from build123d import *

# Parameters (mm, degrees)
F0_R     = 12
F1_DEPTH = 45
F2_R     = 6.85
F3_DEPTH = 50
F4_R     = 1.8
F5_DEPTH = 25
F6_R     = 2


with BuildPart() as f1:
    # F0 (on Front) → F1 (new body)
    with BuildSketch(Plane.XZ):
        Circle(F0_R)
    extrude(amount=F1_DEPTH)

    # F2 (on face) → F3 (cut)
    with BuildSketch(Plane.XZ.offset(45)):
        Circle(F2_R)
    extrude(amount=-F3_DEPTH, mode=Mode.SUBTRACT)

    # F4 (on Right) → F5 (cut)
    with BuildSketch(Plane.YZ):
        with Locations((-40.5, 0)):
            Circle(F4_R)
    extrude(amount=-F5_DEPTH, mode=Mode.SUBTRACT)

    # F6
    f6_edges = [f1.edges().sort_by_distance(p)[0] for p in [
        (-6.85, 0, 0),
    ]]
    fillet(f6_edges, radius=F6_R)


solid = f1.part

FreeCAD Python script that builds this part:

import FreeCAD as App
import Part
import Sketcher


def edges_at(feature, points):
    """Names of the edges that pass closest to the given points."""
    edges = feature.Shape.Edges
    near = lambda p: min(range(len(edges)), key=lambda i: edges[i].distToShape(Part.Vertex(*p))[0])
    return sorted({f"Edge{near(p) + 1}" for p in points})

doc = App.newDocument("Part")
body = doc.addObject("PartDesign::Body", "Body")

sketch1 = body.newObject("Sketcher::SketchObject", "Sketch")
sketch1.AttachmentSupport = (doc.getObject("XZ_Plane"), [""])
sketch1.MapMode = "FlatFace"
sketch1.addGeometry(Part.Circle(App.Vector(0, 0, 0), App.Vector(0, 0, 1), 12), False)
sketch1.addConstraint(Sketcher.Constraint("Coincident", 0, 3, -1, 1))
sketch1.addConstraint(Sketcher.Constraint("Diameter", 0, 24.0))
pad1 = body.newObject("PartDesign::Pad", "Pad")
pad1.Profile = sketch1
pad1.Length = 45

sketch2 = body.newObject("Sketcher::SketchObject", "Sketch001")
sketch2.AttachmentSupport = (doc.getObject("XZ_Plane"), [""])
sketch2.MapMode = "FlatFace"
sketch2.AttachmentOffset = App.Placement(App.Vector(0, 0, 45), App.Rotation())
sketch2.addGeometry(Part.Circle(App.Vector(0, 0, 0), App.Vector(0, 0, 1), 7), False)
sketch2.addConstraint(Sketcher.Constraint("Coincident", 0, 3, -1, 1))
sketch2.addConstraint(Sketcher.Constraint("Diameter", 0, 13.7))
pocket1 = body.newObject("PartDesign::Pocket", "Pocket")
pocket1.Profile = sketch2
pocket1.Length = 50

sketch3 = body.newObject("Sketcher::SketchObject", "Sketch002")
sketch3.AttachmentSupport = (doc.getObject("YZ_Plane"), [""])
sketch3.MapMode = "FlatFace"
sketch3.addGeometry(Part.Circle(App.Vector(-40.5, 0, 0), App.Vector(0, 0, 1), 1.8), False)
sketch3.addConstraint(Sketcher.Constraint("PointOnObject", 0, 3, -1))
sketch3.addConstraint(Sketcher.Constraint("Diameter", 0, 3.6))
sketch3.addConstraint(Sketcher.Constraint("DistanceX", 0, 3, -1, 1, 40.5))
pocket2 = body.newObject("PartDesign::Pocket", "Pocket001")
pocket2.Profile = sketch3
pocket2.Length = 25
doc.recompute()

fillet = body.newObject("PartDesign::Fillet", "Fillet")
fillet.Base = (pocket2, edges_at(pocket2, [(-6.85, 0, 0)]))
fillet.Radius = 2

doc.recompute()
